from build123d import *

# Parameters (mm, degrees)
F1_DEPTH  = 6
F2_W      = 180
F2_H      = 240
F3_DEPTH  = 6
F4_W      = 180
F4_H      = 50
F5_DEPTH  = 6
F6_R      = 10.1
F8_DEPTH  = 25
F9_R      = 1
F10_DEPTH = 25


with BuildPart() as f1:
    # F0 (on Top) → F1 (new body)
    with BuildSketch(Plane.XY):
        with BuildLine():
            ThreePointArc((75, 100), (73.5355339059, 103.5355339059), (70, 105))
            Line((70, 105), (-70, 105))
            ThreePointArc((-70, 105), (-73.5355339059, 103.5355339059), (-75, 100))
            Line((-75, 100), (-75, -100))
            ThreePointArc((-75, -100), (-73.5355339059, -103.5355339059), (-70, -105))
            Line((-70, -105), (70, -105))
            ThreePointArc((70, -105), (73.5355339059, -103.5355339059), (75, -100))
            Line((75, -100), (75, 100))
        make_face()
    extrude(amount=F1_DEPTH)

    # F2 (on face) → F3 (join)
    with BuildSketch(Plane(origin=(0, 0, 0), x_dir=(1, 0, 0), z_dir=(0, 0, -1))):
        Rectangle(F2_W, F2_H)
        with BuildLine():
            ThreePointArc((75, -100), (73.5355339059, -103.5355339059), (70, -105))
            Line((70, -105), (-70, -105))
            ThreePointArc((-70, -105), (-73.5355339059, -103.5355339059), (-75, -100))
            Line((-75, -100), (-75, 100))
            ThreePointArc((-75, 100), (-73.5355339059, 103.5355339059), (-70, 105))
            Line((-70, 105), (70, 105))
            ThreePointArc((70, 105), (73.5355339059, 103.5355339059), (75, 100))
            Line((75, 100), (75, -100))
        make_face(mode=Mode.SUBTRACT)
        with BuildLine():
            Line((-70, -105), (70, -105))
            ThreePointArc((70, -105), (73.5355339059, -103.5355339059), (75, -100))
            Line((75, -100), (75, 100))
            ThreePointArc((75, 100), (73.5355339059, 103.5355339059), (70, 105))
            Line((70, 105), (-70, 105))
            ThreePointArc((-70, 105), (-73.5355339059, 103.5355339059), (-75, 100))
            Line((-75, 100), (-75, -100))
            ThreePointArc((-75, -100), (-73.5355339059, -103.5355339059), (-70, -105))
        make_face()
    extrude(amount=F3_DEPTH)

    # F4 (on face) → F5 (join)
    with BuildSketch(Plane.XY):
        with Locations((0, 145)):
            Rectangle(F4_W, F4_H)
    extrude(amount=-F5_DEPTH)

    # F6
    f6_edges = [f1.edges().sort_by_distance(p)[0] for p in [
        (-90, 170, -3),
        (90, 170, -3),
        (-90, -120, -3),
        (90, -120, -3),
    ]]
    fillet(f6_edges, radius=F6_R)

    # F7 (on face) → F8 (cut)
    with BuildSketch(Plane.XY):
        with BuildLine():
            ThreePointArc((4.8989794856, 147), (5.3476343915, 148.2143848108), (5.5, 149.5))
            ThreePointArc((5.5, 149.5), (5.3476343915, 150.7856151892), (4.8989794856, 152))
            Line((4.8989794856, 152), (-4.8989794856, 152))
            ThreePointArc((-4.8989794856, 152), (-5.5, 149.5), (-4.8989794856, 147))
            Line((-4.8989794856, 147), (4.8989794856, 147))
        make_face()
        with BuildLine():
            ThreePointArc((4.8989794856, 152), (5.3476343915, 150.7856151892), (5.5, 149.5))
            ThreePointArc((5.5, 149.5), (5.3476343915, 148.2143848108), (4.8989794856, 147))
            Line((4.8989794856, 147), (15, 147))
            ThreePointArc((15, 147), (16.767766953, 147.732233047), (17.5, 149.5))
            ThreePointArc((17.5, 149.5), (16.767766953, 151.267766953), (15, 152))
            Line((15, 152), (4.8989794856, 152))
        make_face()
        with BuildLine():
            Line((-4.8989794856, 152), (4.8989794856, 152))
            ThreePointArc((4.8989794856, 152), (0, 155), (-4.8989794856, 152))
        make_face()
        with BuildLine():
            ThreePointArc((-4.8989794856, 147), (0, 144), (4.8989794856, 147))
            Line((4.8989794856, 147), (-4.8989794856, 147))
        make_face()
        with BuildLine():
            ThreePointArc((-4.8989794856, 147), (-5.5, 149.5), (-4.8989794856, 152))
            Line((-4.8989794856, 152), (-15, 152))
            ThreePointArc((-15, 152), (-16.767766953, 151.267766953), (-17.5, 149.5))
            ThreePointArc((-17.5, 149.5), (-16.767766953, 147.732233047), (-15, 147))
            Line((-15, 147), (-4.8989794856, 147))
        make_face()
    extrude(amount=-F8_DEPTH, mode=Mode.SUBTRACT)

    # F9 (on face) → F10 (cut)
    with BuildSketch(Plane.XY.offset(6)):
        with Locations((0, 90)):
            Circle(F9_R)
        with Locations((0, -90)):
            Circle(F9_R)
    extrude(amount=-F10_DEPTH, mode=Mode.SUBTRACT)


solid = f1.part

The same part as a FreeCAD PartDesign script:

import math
import FreeCAD as App
import Part
import Sketcher
from FreeCAD import Vector


def edges_at(feature, points):
    """Names of the edges that pass closest to the given points."""
    edges = feature.Shape.Edges
    near = lambda p: min(range(len(edges)), key=lambda i: edges[i].distToShape(Part.Vertex(*p))[0])
    return sorted({f"Edge{near(p) + 1}" for p in points})


def add_polygon(sketch, points):
    """Adds a closed chain of lines whose ends are joined by coincident constraints."""
    first, n = sketch.GeometryCount, len(points)
    for a, b in zip(points, points[1:] + points[:1]):
        sketch.addGeometry(Part.LineSegment(App.Vector(*a, 0), App.Vector(*b, 0)), False)
    for i in range(n):
        sketch.addConstraint(Sketcher.Constraint("Coincident", first + i, 2, first + (i + 1) % n, 1))

doc = App.newDocument("Part")
body = doc.addObject("PartDesign::Body", "Body")

sketch1 = body.newObject("Sketcher::SketchObject", "Sketch")
sketch1.AttachmentSupport = (doc.getObject("XY_Plane"), [""])
sketch1.MapMode = "FlatFace"
sketch1.addGeometry(Part.ArcOfCircle(Part.Circle(Vector(70, 100, 0), Vector(0, 0, 1), 5), math.radians(0), math.radians(90)), False)
sketch1.addGeometry(Part.LineSegment(Vector(70, 105, 0), Vector(-70, 105, 0)), False)
sketch1.addGeometry(Part.ArcOfCircle(Part.Circle(Vector(-70, 100, 0), Vector(0, 0, 1), 5), math.radians(90), math.radians(180)), False)
sketch1.addGeometry(Part.LineSegment(Vector(-75, 100, 0), Vector(-75, -100, 0)), False)
sketch1.addGeometry(Part.ArcOfCircle(Part.Circle(Vector(-70, -100, 0), Vector(0, 0, 1), 5), math.radians(180), math.radians(270)), False)
sketch1.addGeometry(Part.LineSegment(Vector(-70, -105, 0), Vector(70, -105, 0)), False)
sketch1.addGeometry(Part.ArcOfCircle(Part.Circle(Vector(70, -100, 0), Vector(0, 0, 1), 5), math.radians(-90), math.radians(0)), False)
sketch1.addGeometry(Part.LineSegment(Vector(75, -100, 0), Vector(75, 100, 0)), False)
sketch1.addConstraint(Sketcher.Constraint("Tangent", 0, 2, 1, 1))
sketch1.addConstraint(Sketcher.Constraint("Tangent", 1, 2, 2, 1))
sketch1.addConstraint(Sketcher.Constraint("Tangent", 2, 2, 3, 1))
sketch1.addConstraint(Sketcher.Constraint("Tangent", 3, 2, 4, 1))
sketch1.addConstraint(Sketcher.Constraint("Tangent", 4, 2, 5, 1))
sketch1.addConstraint(Sketcher.Constraint("Tangent", 5, 2, 6, 1))
sketch1.addConstraint(Sketcher.Constraint("Tangent", 6, 2, 7, 1))
sketch1.addConstraint(Sketcher.Constraint("Tangent", 7, 2, 0, 1))
sketch1.addConstraint(Sketcher.Constraint("Horizontal", 1))
sketch1.addConstraint(Sketcher.Constraint("Vertical", 3))
sketch1.addConstraint(Sketcher.Constraint("Horizontal", 5))
sketch1.addConstraint(Sketcher.Constraint("Vertical", 7))
sketch1.addConstraint(Sketcher.Constraint("Equal", 0, 2))
sketch1.addConstraint(Sketcher.Constraint("Equal", 2, 4))
sketch1.addConstraint(Sketcher.Constraint("Equal", 4, 6))
sketch1.addConstraint(Sketcher.Constraint("Symmetric", 0, 3, 4, 3, -1, 1))
sketch1.addConstraint(Sketcher.Constraint("Radius", 0, 5.0))
sketch1.addConstraint(Sketcher.Constraint("DistanceX", 1, 2, 1, 1, 140.0))
sketch1.addConstraint(Sketcher.Constraint("DistanceY", 3, 2, 3, 1, 200.0))
pad1 = body.newObject("PartDesign::Pad", "Pad")
pad1.Profile = sketch1
pad1.Length = 6

sketch2 = body.newObject("Sketcher::SketchObject", "Sketch001")
sketch2.AttachmentSupport = (doc.getObject("XY_Plane"), [""])
sketch2.MapMode = "FlatFace"
add_polygon(sketch2, [(-90, -120), (-90, 120), (90, 120), (90, -120)])
sketch2.addConstraint(Sketcher.Constraint("Vertical", 0))
sketch2.addConstraint(Sketcher.Constraint("Horizontal", 1))
sketch2.addConstraint(Sketcher.Constraint("Vertical", 2))
sketch2.addConstraint(Sketcher.Constraint("Horizontal", 3))
sketch2.addConstraint(Sketcher.Constraint("Symmetric", 0, 2, 2, 2, -1, 1))
sketch2.addConstraint(Sketcher.Constraint("DistanceX", 1, 1, 1, 2, 180.0))
sketch2.addConstraint(Sketcher.Constraint("DistanceY", 0, 1, 0, 2, 240.0))
pad2 = body.newObject("PartDesign::Pad", "Pad001")
pad2.Profile = sketch2
pad2.Length = 6
pad2.Reversed = True

sketch3 = body.newObject("Sketcher::SketchObject", "Sketch002")
sketch3.AttachmentSupport = (doc.getObject("XY_Plane"), [""])
sketch3.MapMode = "FlatFace"
add_polygon(sketch3, [(-90, 170), (-90, 120), (90, 120), (90, 170)])
sketch3.addConstraint(Sketcher.Constraint("Vertical", 0))
sketch3.addConstraint(Sketcher.Constraint("Horizontal", 1))
sketch3.addConstraint(Sketcher.Constraint("Vertical", 2))
sketch3.addConstraint(Sketcher.Constraint("Horizontal", 3))
sketch3.addConstraint(Sketcher.Constraint("DistanceX", 1, 1, 1, 2, 180.0))
sketch3.addConstraint(Sketcher.Constraint("DistanceY", 0, 2, 0, 1, 50.0))
sketch3.addConstraint(Sketcher.Constraint("DistanceX", 0, 2, -1, 1, 90.0))
sketch3.addConstraint(Sketcher.Constraint("DistanceY", -1, 1, 0, 2, 120.0))
pad3 = body.newObject("PartDesign::Pad", "Pad002")
pad3.Profile = sketch3
pad3.Length = 6
pad3.Reversed = True
doc.recompute()

fillet = body.newObject("PartDesign::Fillet", "Fillet")
fillet.Base = (pad3, edges_at(pad3, [
    (-90, 170, -3),
    (90, 170, -3),
    (-90, -120, -3),
    (90, -120, -3),
]))
fillet.Radius = 10.1

sketch4 = body.newObject("Sketcher::SketchObject", "Sketch003")
sketch4.AttachmentSupport = (doc.getObject("XY_Plane"), [""])
sketch4.MapMode = "FlatFace"
sketch4.addGeometry(Part.ArcOfCircle(Part.Circle(Vector(0, 149.5, 0), Vector(0, 0, 1), 5.5), math.radians(-152.964308), math.radians(-27.035692)), False)
sketch4.addGeometry(Part.LineSegment(Vector(4.898979, 147, 0), Vector(15, 147, 0)), False)
sketch4.addGeometry(Part.ArcOfCircle(Part.Circle(Vector(15, 149.5, 0), Vector(0, 0, 1), 2.5), math.radians(-90), math.radians(0)), False)
sketch4.addGeometry(Part.ArcOfCircle(Part.Circle(Vector(15, 149.5, 0), Vector(0, 0, 1), 2.5), math.radians(0), math.radians(90)), False)
sketch4.addGeometry(Part.LineSegment(Vector(15, 152, 0), Vector(4.898979, 152, 0)), False)
sketch4.addGeometry(Part.ArcOfCircle(Part.Circle(Vector(0, 149.5, 0), Vector(0, 0, 1), 5.5), math.radians(27.035692), math.radians(152.964308)), False)
sketch4.addGeometry(Part.LineSegment(Vector(-4.898979, 152, 0), Vector(-15, 152, 0)), False)
sketch4.addGeometry(Part.ArcOfCircle(Part.Circle(Vector(-15, 149.5, 0), Vector(0, 0, 1), 2.5), math.radians(90), math.radians(180)), False)
sketch4.addGeometry(Part.ArcOfCircle(Part.Circle(Vector(-15, 149.5, 0), Vector(0, 0, 1), 2.5), math.radians(180), math.radians(270)), False)
sketch4.addGeometry(Part.LineSegment(Vector(-15, 147, 0), Vector(-4.898979, 147, 0)), False)
sketch4.addConstraint(Sketcher.Constraint("Coincident", 0, 2, 1, 1))
sketch4.addConstraint(Sketcher.Constraint("Tangent", 1, 2, 2, 1))
sketch4.addConstraint(Sketcher.Constraint("Tangent", 2, 2, 3, 1))
sketch4.addConstraint(Sketcher.Constraint("Tangent", 3, 2, 4, 1))
sketch4.addConstraint(Sketcher.Constraint("Coincident", 4, 2, 5, 1))
sketch4.addConstraint(Sketcher.Constraint("Coincident", 5, 2, 6, 1))
sketch4.addConstraint(Sketcher.Constraint("Tangent", 6, 2, 7, 1))
sketch4.addConstraint(Sketcher.Constraint("Tangent", 7, 2, 8, 1))
sketch4.addConstraint(Sketcher.Constraint("Tangent", 8, 2, 9, 1))
sketch4.addConstraint(Sketcher.Constraint("Coincident", 9, 2, 0, 1))
sketch4.addConstraint(Sketcher.Constraint("Horizontal", 1))
sketch4.addConstraint(Sketcher.Constraint("Horizontal", 4))
sketch4.addConstraint(Sketcher.Constraint("Horizontal", 6))
sketch4.addConstraint(Sketcher.Constraint("Horizontal", 9))
sketch4.addConstraint(Sketcher.Constraint("Coincident", 5, 3, 0, 3))
sketch4.addConstraint(Sketcher.Constraint("Equal", 2, 3))
sketch4.addConstraint(Sketcher.Constraint("Equal", 0, 5))
sketch4.addConstraint(Sketcher.Constraint("Equal", 3, 7))
sketch4.addConstraint(Sketcher.Constraint("Equal", 7, 8))
sketch4.addConstraint(Sketcher.Constraint("Symmetric", 2, 3, 7, 3, -2))
sketch4.addConstraint(Sketcher.Constraint("PointOnObject", 0, 3, -2))
sketch4.addConstraint(Sketcher.Constraint("Horizontal", 0, 3, 2, 3))
sketch4.addConstraint(Sketcher.Constraint("Horizontal", 8, 3, 2, 2))
sketch4.addConstraint(Sketcher.Constraint("Horizontal", 2, 2, 7, 2))
sketch4.addConstraint(Sketcher.Constraint("Radius", 0, 5.5))
sketch4.addConstraint(Sketcher.Constraint("Radius", 2, 2.5))
sketch4.addConstraint(Sketcher.Constraint("DistanceX", -1, 1, 2, 3, 15.0))
sketch4.addConstraint(Sketcher.Constraint("DistanceY", -1, 1, 0, 2, 147.0))
pocket1 = body.newObject("PartDesign::Pocket", "Pocket")
pocket1.Profile = sketch4
pocket1.Length = 25

sketch5 = body.newObject("Sketcher::SketchObject", "Sketch004")
sketch5.AttachmentSupport = (doc.getObject("XY_Plane"), [""])
sketch5.MapMode = "FlatFace"
sketch5.AttachmentOffset = App.Placement(Vector(0, 0, 6), App.Rotation())
sketch5.addGeometry(Part.Circle(Vector(0, 90, 0), Vector(0, 0, 1), 1), False)
sketch5.addGeometry(Part.Circle(Vector(0, -90, 0), Vector(0, 0, 1), 1), False)
sketch5.addConstraint(Sketcher.Constraint("Equal", 0, 1))
sketch5.addConstraint(Sketcher.Constraint("Symmetric", 0, 3, 1, 3, -1, 1))
sketch5.addConstraint(Sketcher.Constraint("PointOnObject", 0, 3, -2))
sketch5.addConstraint(Sketcher.Constraint("Diameter", 0, 2.0))
sketch5.addConstraint(Sketcher.Constraint("DistanceY", -1, 1, 0, 3, 90.0))
pocket2 = body.newObject("PartDesign::Pocket", "Pocket001")
pocket2.Profile = sketch5
pocket2.Length = 25

doc.recompute()
